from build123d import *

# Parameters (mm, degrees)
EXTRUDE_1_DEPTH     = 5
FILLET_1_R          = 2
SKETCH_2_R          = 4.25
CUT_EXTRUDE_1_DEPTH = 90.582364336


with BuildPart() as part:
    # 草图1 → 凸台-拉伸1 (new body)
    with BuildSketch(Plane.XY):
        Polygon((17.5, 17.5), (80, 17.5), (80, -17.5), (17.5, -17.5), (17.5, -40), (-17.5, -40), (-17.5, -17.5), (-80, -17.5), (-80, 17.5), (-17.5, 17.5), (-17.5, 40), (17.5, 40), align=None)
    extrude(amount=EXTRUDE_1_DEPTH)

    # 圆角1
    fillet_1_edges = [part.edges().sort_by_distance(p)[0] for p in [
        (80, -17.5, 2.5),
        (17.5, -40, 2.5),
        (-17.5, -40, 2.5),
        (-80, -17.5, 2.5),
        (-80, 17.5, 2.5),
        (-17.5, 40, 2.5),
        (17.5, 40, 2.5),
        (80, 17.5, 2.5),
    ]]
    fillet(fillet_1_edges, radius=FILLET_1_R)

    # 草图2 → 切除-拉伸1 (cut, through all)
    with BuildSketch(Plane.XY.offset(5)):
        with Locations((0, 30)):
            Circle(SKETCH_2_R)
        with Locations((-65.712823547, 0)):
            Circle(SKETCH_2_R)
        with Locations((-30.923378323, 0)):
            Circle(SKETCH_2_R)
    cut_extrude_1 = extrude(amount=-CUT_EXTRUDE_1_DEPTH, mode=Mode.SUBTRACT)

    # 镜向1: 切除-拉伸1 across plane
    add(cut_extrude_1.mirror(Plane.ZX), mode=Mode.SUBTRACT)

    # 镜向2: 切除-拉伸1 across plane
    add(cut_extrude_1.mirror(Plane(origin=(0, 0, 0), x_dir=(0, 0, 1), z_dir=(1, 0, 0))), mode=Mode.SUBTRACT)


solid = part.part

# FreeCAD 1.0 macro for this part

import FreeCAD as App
import Part
import Sketcher


def edges_at(feature, points):
    """Names of the edges that pass closest to the given points."""
    edges = feature.Shape.Edges
    near = lambda p: min(range(len(edges)), key=lambda i: edges[i].distToShape(Part.Vertex(*p))[0])
    return sorted({f"Edge{near(p) + 1}" for p in points})

doc = App.newDocument("Part")
body = doc.addObject("PartDesign::Body", "Body")

sketch1 = body.newObject("Sketcher::SketchObject", "Sketch")
sketch1.AttachmentSupport = (doc.getObject("XY_Plane"), [""])
sketch1.MapMode = "FlatFace"
sketch1.addGeometry(Part.LineSegment(App.Vector(80, 17.5, 0), App.Vector(17.5, 17.5, 0)), False)
sketch1.addGeometry(Part.LineSegment(App.Vector(17.5, 17.5, 0), App.Vector(17.5, 40, 0)), False)
sketch1.addGeometry(Part.LineSegment(App.Vector(17.5, 40, 0), App.Vector(-17.5, 40, 0)), False)
sketch1.addGeometry(Part.LineSegment(App.Vector(-17.5, 40, 0), App.Vector(-17.5, 17.5, 0)), False)
sketch1.addGeometry(Part.LineSegment(App.Vector(-17.5, 17.5, 0), App.Vector(-80, 17.5, 0)), False)
sketch1.addGeometry(Part.LineSegment(App.Vector(-80, 17.5, 0), App.Vector(-80, -17.5, 0)), False)
sketch1.addGeometry(Part.LineSegment(App.Vector(-80, -17.5, 0), App.Vector(-17.5, -17.5, 0)), False)
sketch1.addGeometry(Part.LineSegment(App.Vector(-17.5, -17.5, 0), App.Vector(-17.5, -40, 0)), False)
sketch1.addGeometry(Part.LineSegment(App.Vector(-17.5, -40, 0), App.Vector(17.5, -40, 0)), False)
sketch1.addGeometry(Part.LineSegment(App.Vector(17.5, -40, 0), App.Vector(17.5, -17.5, 0)), False)
sketch1.addGeometry(Part.LineSegment(App.Vector(17.5, -17.5, 0), App.Vector(80, -17.5, 0)), False)
sketch1.addGeometry(Part.LineSegment(App.Vector(80, -17.5, 0), App.Vector(80, 17.5, 0)), False)
sketch1.addConstraint(Sketcher.Constraint("Coincident", 0, 2, 1, 1))
sketch1.addConstraint(Sketcher.Constraint("Coincident", 1, 2, 2, 1))
sketch1.addConstraint(Sketcher.Constraint("Coincident", 2, 2, 3, 1))
sketch1.addConstraint(Sketcher.Constraint("Coincident", 3, 2, 4, 1))
sketch1.addConstraint(Sketcher.Constraint("Coincident", 4, 2, 5, 1))
sketch1.addConstraint(Sketcher.Constraint("Coincident", 5, 2, 6, 1))
sketch1.addConstraint(Sketcher.Constraint("Coincident", 6, 2, 7, 1))
sketch1.addConstraint(Sketcher.Constraint("Coincident", 7, 2, 8, 1))
sketch1.addConstraint(Sketcher.Constraint("Coincident", 8, 2, 9, 1))
sketch1.addConstraint(Sketcher.Constraint("Coincident", 9, 2, 10, 1))
sketch1.addConstraint(Sketcher.Constraint("Coincident", 10, 2, 11, 1))
sketch1.addConstraint(Sketcher.Constraint("Coincident", 11, 2, 0, 1))
sketch1.addConstraint(Sketcher.Constraint("Horizontal", 0))
sketch1.addConstraint(Sketcher.Constraint("Vertical", 1))
sketch1.addConstraint(Sketcher.Constraint("Horizontal", 2))
sketch1.addConstraint(Sketcher.Constraint("Vertical", 3))
sketch1.addConstraint(Sketcher.Constraint("Horizontal", 4))
sketch1.addConstraint(Sketcher.Constraint("Vertical", 5))
sketch1.addConstraint(Sketcher.Constraint("Horizontal", 6))
sketch1.addConstraint(Sketcher.Constraint("Vertical", 7))
sketch1.addConstraint(Sketcher.Constraint("Horizontal", 8))
sketch1.addConstraint(Sketcher.Constraint("Vertical", 9))
sketch1.addConstraint(Sketcher.Constraint("Horizontal", 10))
sketch1.addConstraint(Sketcher.Constraint("Vertical", 11))
sketch1.addConstraint(Sketcher.Constraint("Symmetric", 0, 2, 6, 2, -1, 1))
sketch1.addConstraint(Sketcher.Constraint("Symmetric", 2, 2, 8, 2, -1, 1))
sketch1.addConstraint(Sketcher.Constraint("Symmetric", 4, 2, 10, 2, -1, 1))
sketch1.addConstraint(Sketcher.Constraint("Symmetric", 0, 2, 3, 2, -2))
sketch1.addConstraint(Sketcher.Constraint("Equal", 8, 5))
sketch1.addConstraint(Sketcher.Constraint("DistanceX", 2, 2, 2, 1, 35.0))
sketch1.addConstraint(Sketcher.Constraint("DistanceX", 0, 2, 0, 1, 62.5))
sketch1.addConstraint(Sketcher.Constraint("DistanceY", 1, 1, 1, 2, 22.5))
pad1 = body.newObject("PartDesign::Pad", "Pad")
pad1.Profile = sketch1
pad1.Length = 5
doc.recompute()

fillet = body.newObject("PartDesign::Fillet", "Fillet")
fillet.Base = (pad1, edges_at(pad1, [
    (80, -17.5, 2.5),
    (17.5, -40, 2.5),
    (-17.5, -40, 2.5),
    (-80, -17.5, 2.5),
    (-80, 17.5, 2.5),
    (-17.5, 40, 2.5),
    (17.5, 40, 2.5),
    (80, 17.5, 2.5),
]))
fillet.Radius = 2

sketch2 = body.newObject("Sketcher::SketchObject", "Sketch001")
sketch2.AttachmentSupport = (doc.getObject("XY_Plane"), [""])
sketch2.MapMode = "FlatFace"
sketch2.AttachmentOffset = App.Placement(App.Vector(0, 0, 5), App.Rotation())
sketch2.addGeometry(Part.Circle(App.Vector(0, 30, 0), App.Vector(0, 0, 1), 4.25), False)
sketch2.addGeometry(Part.Circle(App.Vector(-65.712824, 0, 0), App.Vector(0, 0, 1), 4.25), False)
sketch2.addGeometry(Part.Circle(App.Vector(-30.923378, 0, 0), App.Vector(0, 0, 1), 4.25), False)
sketch2.addConstraint(Sketcher.Constraint("Equal", 0, 1))
sketch2.addConstraint(Sketcher.Constraint("Equal", 1, 2))
sketch2.addConstraint(Sketcher.Constraint("PointOnObject", 0, 3, -2))
sketch2.addConstraint(Sketcher.Constraint("PointOnObject", 1, 3, -1))
sketch2.addConstraint(Sketcher.Constraint("PointOnObject", 2, 3, -1))
sketch2.addConstraint(Sketcher.Constraint("Diameter", 0, 8.5))
sketch2.addConstraint(Sketcher.Constraint("DistanceY", -1, 1, 0, 3, 30.0))
sketch2.addConstraint(Sketcher.Constraint("DistanceX", 2, 3, -1, 1, 30.923378))
sketch2.addConstraint(Sketcher.Constraint("DistanceX", 1, 3, -1, 1, 65.712824))
pocket1 = body.newObject("PartDesign::Pocket", "Pocket")
pocket1.Profile = sketch2
pocket1.Type = "ThroughAll"
doc.recompute()

mirrored = body.newObject("PartDesign::Mirrored", "Mirrored")
mirrored.Originals = [pocket1]
mirrored.MirrorPlane = (doc.getObject("XZ_Plane"), [""])
body.Tip = mirrored
doc.recompute()

mirrored2 = body.newObject("PartDesign::Mirrored", "Mirrored001")
mirrored2.Originals = [pocket1]
mirrored2.MirrorPlane = (doc.getObject("YZ_Plane"), [""])
body.Tip = mirrored2

doc.recompute()
